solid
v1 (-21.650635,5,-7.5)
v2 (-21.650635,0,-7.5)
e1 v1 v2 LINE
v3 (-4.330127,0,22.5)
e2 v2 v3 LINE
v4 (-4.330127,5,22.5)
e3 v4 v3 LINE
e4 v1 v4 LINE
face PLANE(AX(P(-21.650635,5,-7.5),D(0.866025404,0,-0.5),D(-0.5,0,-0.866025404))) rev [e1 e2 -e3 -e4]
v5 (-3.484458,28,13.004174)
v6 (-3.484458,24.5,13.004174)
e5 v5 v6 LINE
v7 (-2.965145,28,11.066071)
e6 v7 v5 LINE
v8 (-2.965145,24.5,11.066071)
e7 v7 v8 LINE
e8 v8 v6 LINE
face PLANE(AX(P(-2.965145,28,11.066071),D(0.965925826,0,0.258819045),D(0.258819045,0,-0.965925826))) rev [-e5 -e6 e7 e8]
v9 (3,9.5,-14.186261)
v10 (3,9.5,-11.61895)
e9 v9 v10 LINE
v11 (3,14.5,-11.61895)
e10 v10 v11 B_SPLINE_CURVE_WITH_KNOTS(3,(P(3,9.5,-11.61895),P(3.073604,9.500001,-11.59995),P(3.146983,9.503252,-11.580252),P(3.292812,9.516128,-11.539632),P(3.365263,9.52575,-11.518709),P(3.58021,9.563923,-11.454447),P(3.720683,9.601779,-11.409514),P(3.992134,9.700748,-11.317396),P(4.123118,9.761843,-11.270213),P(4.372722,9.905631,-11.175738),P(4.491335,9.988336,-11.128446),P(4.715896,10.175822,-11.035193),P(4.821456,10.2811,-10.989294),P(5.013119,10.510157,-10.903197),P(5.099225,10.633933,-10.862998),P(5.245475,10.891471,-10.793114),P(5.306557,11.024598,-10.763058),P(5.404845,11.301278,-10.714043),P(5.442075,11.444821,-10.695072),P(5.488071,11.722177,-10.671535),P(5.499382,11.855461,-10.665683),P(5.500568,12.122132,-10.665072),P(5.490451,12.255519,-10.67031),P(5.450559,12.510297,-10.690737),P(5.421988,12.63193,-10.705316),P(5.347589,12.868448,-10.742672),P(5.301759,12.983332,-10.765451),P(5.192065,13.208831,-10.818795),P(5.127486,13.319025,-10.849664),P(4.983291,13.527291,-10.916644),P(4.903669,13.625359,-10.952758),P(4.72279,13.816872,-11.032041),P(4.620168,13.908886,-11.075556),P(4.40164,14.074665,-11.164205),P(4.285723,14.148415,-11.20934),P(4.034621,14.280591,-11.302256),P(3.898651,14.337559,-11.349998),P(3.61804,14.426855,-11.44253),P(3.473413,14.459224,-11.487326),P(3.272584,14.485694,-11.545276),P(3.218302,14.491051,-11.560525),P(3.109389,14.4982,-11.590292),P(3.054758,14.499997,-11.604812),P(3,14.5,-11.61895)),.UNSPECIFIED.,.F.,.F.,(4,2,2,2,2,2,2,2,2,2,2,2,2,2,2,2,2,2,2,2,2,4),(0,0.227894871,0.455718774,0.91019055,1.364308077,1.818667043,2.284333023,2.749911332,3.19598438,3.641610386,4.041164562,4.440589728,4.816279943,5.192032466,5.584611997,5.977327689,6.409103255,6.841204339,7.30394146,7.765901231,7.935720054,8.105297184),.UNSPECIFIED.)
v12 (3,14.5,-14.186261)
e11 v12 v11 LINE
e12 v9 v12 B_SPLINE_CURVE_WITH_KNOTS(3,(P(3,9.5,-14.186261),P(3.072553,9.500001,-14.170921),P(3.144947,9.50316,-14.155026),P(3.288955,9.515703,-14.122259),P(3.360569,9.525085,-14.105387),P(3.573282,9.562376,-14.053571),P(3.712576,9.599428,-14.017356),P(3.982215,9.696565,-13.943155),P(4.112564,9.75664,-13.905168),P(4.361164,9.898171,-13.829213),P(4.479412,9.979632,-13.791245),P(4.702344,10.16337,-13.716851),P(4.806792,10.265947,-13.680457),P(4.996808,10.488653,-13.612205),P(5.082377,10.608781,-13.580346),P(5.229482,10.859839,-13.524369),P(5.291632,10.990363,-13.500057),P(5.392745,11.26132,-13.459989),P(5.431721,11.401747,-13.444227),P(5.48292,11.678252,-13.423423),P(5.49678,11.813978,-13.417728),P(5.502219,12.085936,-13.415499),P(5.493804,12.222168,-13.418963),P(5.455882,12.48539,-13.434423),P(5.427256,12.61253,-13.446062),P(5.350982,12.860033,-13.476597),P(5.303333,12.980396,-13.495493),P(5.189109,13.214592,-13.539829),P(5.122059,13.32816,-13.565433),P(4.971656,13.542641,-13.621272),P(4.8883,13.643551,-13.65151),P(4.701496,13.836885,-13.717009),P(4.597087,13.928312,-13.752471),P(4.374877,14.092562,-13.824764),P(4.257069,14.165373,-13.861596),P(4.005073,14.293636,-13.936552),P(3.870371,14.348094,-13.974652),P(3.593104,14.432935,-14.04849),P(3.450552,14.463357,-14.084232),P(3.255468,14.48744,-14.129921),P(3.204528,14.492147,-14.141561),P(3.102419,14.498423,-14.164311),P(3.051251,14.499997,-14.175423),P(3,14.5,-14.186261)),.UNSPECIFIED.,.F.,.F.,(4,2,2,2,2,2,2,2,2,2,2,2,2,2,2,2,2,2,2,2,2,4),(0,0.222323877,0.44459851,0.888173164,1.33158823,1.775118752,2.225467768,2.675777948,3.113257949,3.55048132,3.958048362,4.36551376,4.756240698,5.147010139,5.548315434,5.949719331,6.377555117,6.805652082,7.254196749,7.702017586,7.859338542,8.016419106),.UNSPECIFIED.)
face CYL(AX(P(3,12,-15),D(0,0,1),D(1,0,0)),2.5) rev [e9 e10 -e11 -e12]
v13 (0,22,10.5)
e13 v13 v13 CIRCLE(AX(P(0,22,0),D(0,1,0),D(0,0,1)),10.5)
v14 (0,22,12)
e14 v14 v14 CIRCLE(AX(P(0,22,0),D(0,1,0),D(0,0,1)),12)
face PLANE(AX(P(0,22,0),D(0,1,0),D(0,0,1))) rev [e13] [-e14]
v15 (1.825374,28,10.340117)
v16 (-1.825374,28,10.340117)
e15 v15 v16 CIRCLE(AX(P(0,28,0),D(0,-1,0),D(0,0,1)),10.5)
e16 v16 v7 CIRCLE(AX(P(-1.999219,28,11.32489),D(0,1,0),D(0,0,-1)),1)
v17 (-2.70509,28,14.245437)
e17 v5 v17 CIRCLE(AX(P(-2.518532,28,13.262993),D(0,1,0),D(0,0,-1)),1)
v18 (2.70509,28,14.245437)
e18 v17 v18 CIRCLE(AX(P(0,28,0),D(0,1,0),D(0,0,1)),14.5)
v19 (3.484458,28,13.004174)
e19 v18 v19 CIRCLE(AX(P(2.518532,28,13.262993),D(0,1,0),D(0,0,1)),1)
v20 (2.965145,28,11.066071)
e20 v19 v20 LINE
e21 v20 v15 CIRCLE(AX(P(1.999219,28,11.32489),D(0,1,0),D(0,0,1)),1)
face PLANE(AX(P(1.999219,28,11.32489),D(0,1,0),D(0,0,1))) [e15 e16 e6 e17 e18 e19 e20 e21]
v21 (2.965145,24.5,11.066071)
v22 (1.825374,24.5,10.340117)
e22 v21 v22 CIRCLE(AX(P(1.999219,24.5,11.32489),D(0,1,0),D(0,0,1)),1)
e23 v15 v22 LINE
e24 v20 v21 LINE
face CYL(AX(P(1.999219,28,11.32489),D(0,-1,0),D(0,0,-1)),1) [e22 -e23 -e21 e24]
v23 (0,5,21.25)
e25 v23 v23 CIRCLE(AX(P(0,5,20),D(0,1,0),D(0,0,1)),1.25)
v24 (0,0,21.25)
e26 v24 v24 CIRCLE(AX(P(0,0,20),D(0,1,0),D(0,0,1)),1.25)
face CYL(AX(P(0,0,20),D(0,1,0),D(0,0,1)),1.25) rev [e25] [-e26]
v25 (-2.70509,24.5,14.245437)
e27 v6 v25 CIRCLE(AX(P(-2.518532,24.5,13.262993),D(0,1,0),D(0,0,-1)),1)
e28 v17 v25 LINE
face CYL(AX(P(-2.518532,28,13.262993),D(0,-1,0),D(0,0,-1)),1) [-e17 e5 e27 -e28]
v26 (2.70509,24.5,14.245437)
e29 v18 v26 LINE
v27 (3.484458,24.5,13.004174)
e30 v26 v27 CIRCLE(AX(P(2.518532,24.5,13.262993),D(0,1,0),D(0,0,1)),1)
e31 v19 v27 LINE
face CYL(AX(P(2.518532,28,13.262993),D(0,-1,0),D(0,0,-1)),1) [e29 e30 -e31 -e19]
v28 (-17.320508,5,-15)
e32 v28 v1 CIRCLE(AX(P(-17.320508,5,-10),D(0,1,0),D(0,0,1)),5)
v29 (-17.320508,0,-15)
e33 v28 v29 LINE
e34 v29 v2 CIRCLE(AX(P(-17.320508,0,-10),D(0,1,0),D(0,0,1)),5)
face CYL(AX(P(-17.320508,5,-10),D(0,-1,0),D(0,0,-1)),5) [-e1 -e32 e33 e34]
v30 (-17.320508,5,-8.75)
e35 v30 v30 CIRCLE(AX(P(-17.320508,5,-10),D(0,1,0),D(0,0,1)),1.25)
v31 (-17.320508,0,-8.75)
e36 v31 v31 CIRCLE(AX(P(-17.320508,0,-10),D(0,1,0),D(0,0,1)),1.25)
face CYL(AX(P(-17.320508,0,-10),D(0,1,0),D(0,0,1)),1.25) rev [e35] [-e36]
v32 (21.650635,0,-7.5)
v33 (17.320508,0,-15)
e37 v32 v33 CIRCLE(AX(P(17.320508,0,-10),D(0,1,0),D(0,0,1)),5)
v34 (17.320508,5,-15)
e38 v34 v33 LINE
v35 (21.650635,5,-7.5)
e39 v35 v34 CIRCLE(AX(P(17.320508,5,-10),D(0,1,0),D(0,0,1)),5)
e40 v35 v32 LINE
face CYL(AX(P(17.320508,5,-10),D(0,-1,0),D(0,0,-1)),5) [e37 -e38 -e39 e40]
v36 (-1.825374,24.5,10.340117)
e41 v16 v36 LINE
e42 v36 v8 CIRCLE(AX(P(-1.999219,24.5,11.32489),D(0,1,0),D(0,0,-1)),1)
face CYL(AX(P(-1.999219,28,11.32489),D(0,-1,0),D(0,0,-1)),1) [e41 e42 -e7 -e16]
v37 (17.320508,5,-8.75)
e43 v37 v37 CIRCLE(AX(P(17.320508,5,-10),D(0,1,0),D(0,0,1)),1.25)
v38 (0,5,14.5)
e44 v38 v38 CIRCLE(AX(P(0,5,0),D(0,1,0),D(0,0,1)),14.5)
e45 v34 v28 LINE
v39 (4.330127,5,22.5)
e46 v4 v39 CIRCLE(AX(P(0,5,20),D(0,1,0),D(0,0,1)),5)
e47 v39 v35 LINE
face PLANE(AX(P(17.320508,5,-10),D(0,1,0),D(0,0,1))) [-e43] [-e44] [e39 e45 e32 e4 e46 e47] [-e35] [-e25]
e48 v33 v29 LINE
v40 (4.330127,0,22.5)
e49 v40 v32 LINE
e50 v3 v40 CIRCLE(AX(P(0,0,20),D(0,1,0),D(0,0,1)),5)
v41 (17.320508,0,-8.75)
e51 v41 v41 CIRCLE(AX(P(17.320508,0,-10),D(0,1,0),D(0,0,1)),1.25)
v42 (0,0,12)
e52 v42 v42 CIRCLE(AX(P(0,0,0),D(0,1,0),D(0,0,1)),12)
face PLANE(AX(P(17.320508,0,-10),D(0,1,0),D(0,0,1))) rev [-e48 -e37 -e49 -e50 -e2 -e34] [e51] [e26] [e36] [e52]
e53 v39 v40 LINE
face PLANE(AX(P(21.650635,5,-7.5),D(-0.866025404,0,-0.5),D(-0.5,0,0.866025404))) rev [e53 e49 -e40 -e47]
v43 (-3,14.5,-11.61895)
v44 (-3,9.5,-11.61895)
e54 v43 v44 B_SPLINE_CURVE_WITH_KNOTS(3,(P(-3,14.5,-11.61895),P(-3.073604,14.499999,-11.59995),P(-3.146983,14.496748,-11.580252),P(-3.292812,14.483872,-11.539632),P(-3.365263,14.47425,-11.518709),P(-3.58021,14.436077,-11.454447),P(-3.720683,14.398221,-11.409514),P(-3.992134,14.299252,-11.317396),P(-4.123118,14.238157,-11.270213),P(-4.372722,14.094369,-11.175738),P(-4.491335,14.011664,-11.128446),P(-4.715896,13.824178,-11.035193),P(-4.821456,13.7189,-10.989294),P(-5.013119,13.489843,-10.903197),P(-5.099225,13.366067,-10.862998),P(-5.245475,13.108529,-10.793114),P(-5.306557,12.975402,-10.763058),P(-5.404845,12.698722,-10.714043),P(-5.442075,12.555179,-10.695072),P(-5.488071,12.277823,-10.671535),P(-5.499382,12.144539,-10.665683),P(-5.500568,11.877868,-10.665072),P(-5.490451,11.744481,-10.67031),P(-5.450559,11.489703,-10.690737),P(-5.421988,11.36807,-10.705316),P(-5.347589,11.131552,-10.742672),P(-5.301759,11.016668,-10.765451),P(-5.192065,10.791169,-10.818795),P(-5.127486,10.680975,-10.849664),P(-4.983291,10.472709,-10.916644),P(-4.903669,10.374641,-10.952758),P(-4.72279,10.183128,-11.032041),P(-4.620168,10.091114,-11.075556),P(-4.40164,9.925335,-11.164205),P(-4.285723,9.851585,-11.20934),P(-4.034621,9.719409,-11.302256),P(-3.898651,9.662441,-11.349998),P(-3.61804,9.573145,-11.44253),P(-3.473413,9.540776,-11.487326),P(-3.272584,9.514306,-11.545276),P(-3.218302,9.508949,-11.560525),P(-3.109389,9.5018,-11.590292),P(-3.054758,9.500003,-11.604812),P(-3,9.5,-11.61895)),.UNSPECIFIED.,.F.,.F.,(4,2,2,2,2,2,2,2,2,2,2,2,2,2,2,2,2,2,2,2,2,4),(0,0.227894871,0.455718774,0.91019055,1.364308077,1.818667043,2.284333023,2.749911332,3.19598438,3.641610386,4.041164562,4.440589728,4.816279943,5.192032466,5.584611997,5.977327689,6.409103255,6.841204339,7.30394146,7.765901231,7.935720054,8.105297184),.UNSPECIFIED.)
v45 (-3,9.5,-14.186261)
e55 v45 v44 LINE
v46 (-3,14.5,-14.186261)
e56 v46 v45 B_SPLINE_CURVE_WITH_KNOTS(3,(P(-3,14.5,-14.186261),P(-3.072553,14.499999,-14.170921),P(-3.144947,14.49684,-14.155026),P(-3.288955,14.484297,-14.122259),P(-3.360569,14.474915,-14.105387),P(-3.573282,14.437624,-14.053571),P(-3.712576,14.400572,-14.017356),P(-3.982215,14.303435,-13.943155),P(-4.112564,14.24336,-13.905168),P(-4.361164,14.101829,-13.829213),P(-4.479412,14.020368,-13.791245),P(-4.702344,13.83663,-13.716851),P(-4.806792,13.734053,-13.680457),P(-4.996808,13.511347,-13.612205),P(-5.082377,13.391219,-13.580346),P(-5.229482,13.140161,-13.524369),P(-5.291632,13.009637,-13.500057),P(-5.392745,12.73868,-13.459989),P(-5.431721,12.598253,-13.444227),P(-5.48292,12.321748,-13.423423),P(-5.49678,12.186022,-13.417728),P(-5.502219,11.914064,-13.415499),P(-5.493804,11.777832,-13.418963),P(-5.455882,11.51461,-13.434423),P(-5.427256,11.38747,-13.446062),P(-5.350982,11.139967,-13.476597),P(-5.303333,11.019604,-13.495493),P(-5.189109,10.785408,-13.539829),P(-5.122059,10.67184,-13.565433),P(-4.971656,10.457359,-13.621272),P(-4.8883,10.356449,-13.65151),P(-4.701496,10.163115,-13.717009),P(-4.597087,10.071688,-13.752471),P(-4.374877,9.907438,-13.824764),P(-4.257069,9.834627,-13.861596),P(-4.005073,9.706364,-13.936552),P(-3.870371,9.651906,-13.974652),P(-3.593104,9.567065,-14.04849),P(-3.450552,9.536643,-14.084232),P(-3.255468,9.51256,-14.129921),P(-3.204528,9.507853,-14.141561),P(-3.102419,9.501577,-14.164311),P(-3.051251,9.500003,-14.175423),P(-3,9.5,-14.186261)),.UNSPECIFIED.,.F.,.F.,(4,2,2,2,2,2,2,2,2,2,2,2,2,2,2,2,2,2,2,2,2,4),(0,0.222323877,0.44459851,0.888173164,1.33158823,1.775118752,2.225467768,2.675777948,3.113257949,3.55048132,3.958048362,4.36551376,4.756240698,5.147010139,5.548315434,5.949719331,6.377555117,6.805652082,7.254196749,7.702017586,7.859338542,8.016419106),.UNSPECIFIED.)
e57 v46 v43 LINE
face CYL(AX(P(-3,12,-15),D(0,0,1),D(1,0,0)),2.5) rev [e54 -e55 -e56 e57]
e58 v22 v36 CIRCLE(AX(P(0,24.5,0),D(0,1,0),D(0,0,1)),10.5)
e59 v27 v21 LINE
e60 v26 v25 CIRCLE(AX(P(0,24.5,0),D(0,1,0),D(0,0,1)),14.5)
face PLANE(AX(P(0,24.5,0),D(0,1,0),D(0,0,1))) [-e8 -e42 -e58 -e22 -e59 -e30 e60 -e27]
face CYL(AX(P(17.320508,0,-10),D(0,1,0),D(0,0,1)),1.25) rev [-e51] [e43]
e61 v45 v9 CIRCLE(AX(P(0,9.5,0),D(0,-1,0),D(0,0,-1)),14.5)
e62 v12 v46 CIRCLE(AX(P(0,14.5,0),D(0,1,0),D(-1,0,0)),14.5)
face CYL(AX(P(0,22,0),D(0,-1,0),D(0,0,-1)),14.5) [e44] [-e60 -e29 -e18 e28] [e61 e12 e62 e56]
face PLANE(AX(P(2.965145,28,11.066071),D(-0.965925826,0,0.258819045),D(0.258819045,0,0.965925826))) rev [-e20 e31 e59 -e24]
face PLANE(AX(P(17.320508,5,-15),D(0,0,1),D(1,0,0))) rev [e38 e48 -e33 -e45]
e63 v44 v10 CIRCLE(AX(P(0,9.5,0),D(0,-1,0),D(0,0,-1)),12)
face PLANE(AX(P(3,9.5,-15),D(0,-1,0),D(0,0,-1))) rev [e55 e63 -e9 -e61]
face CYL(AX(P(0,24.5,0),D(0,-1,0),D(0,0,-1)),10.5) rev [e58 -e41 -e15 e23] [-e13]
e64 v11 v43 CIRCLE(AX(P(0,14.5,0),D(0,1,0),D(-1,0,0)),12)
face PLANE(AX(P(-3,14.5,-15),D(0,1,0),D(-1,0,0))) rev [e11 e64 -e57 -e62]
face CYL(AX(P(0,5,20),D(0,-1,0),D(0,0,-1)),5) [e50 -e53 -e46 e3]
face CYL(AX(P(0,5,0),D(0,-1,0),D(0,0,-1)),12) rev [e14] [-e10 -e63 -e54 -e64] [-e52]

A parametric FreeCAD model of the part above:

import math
import FreeCAD as App
import Part
import Sketcher
from FreeCAD import Vector
Q = App.Units.Quantity

doc = App.newDocument("Part")
params = doc.addObject("Spreadsheet::Sheet", "Params")
for row, (alias, value) in enumerate([
    ("sketch1_diameter", "24 mm"),
    ("sketch1_radius", "5 mm"),
    ("pad1_length", "5 mm"),
    ("sketch2_diameter", "2.5 mm"),
    ("pocket1_length", "5 mm"),
    ("sketch3_diameter", "29 mm"),
    ("sketch3_diameter2", "24 mm"),
    ("pad2_length", "17 mm"),
    ("sketch4_diameter", "29 mm"),
    ("sketch4_diameter2", "21 mm"),
    ("pad3_length", "2.5 mm"),
    ("sketch5_radius", "0.999999 mm"),
    ("pad4_length", "3.5 mm"),
    ("sketch6_radius", "2.5 mm"),
    ("sketch6_width", "6 mm"),
], start=1):
    params.set(f"A{row}", alias)
    params.set(f"B{row}", "=" + value)
    params.setAlias(f"B{row}", alias)

body = doc.addObject("PartDesign::Body", "Body")

sketch1 = body.newObject("Sketcher::SketchObject", "Sketch")
sketch1.AttachmentSupport = (doc.getObject("XZ_Plane"), [""])
sketch1.MapMode = "FlatFace"
sketch1.addGeometry(Part.LineSegment(Vector(-21.7, -7.5, 0), Vector(-4.3, 22.5, 0)), False)
sketch1.addGeometry(Part.ArcOfCircle(Part.Circle(Vector(0, 20, 0), Vector(0, 0, 1), 5), math.radians(30), math.radians(150)), False)
sketch1.addGeometry(Part.LineSegment(Vector(4.3, 22.5, 0), Vector(21.7, -7.5, 0)), False)
sketch1.addGeometry(Part.ArcOfCircle(Part.Circle(Vector(17.3, -10, 0), Vector(0, 0, 1), 5), math.radians(-90), math.radians(30)), False)
sketch1.addGeometry(Part.LineSegment(Vector(17.3, -15, 0), Vector(-17.3, -15, 0)), False)
sketch1.addGeometry(Part.ArcOfCircle(Part.Circle(Vector(-17.3, -10, 0), Vector(0, 0, 1), 5), math.radians(150), math.radians(270)), False)
sketch1.addGeometry(Part.Circle(Vector(0, 0, 0), Vector(0, 0, 1), 12), False)
sketch1.addConstraint(Sketcher.Constraint("Tangent", 0, 2, 1, 2))
sketch1.addConstraint(Sketcher.Constraint("Tangent", 1, 1, 2, 1))
sketch1.addConstraint(Sketcher.Constraint("Tangent", 2, 2, 3, 2))
sketch1.addConstraint(Sketcher.Constraint("Tangent", 3, 1, 4, 1))
sketch1.addConstraint(Sketcher.Constraint("Tangent", 4, 2, 5, 2))
sketch1.addConstraint(Sketcher.Constraint("Tangent", 5, 1, 0, 1))
sketch1.addConstraint(Sketcher.Constraint("Horizontal", 4))
sketch1.addConstraint(Sketcher.Constraint("Coincident", 6, 3, -1, 1))
sketch1.addConstraint(Sketcher.Constraint("Equal", 1, 3))
sketch1.addConstraint(Sketcher.Constraint("Equal", 3, 5))
sketch1.addConstraint(Sketcher.Constraint("Symmetric", 0, 2, 1, 1, -2))
sketch1.addConstraint(Sketcher.Constraint("Diameter", 6, Q("24 mm")))
sketch1.addConstraint(Sketcher.Constraint("Radius", 1, Q("5 mm")))
sketch1.addConstraint(Sketcher.Constraint("Angle", 0, Q("60 deg")))
sketch1.addConstraint(Sketcher.Constraint("DistanceY", -1, 1, 1, 3, Q("20 mm")))
sketch1.addConstraint(Sketcher.Constraint("DistanceY", 3, 3, -1, 1, Q("10 mm")))
sketch1.setExpression("Constraints[11]", "Params.sketch1_diameter")
sketch1.setExpression("Constraints[12]", "Params.sketch1_radius")
pad1 = body.newObject("PartDesign::Pad", "Pad")
pad1.Profile = sketch1
pad1.setExpression("Length", "Params.pad1_length")
pad1.Reversed = True

sketch2 = body.newObject("Sketcher::SketchObject", "Sketch001")
sketch2.AttachmentSupport = (doc.getObject("XZ_Plane"), [""])
sketch2.MapMode = "FlatFace"
sketch2.AttachmentOffset = App.Placement(Vector(0, 0, -5), App.Rotation())
sketch2.addGeometry(Part.Circle(Vector(0, 20, 0), Vector(0, 0, 1), 1.2), False)
sketch2.addGeometry(Part.Circle(Vector(-17.3, -10, 0), Vector(0, 0, 1), 1.2), False)
sketch2.addGeometry(Part.Circle(Vector(17.3, -10, 0), Vector(0, 0, 1), 1.2), False)
sketch2.addConstraint(Sketcher.Constraint("Equal", 0, 1))
sketch2.addConstraint(Sketcher.Constraint("Equal", 1, 2))
sketch2.addConstraint(Sketcher.Constraint("Symmetric", 1, 3, 2, 3, -2))
sketch2.addConstraint(Sketcher.Constraint("PointOnObject", 0, 3, -2))
sketch2.addConstraint(Sketcher.Constraint("Diameter", 0, Q("2.5 mm")))
sketch2.addConstraint(Sketcher.Constraint("DistanceY", -1, 1, 0, 3, Q("20 mm")))
sketch2.addConstraint(Sketcher.Constraint("DistanceY", 1, 3, -1, 1, Q("10 mm")))
sketch2.addConstraint(Sketcher.Constraint("DistanceX", 1, 3, -1, 1, Q("17.320508 mm")))
sketch2.setExpression("Constraints[4]", "Params.sketch2_diameter")
pocket1 = body.newObject("PartDesign::Pocket", "Pocket")
pocket1.Profile = sketch2
pocket1.setExpression("Length", "Params.pocket1_length")
pocket1.Reversed = True

sketch3 = body.newObject("Sketcher::SketchObject", "Sketch002")
sketch3.AttachmentSupport = (doc.getObject("XZ_Plane"), [""])
sketch3.MapMode = "FlatFace"
sketch3.AttachmentOffset = App.Placement(Vector(0, 0, -5), App.Rotation())
sketch3.addGeometry(Part.Circle(Vector(0, 0, 0), Vector(0, 0, 1), 14), False)
sketch3.addGeometry(Part.Circle(Vector(0, 0, 0), Vector(0, 0, 1), 12), False)
sketch3.addConstraint(Sketcher.Constraint("Coincident", 0, 3, -1, 1))
sketch3.addConstraint(Sketcher.Constraint("Coincident", 1, 3, -1, 1))
sketch3.addConstraint(Sketcher.Constraint("Diameter", 0, Q("29 mm")))
sketch3.addConstraint(Sketcher.Constraint("Diameter", 1, Q("24 mm")))
sketch3.setExpression("Constraints[2]", "Params.sketch3_diameter")
sketch3.setExpression("Constraints[3]", "Params.sketch3_diameter2")
pad2 = body.newObject("PartDesign::Pad", "Pad001")
pad2.Profile = sketch3
pad2.setExpression("Length", "Params.pad2_length")
pad2.Reversed = True

sketch4 = body.newObject("Sketcher::SketchObject", "Sketch003")
sketch4.AttachmentSupport = (doc.getObject("XZ_Plane"), [""])
sketch4.MapMode = "FlatFace"
sketch4.AttachmentOffset = App.Placement(Vector(0, 0, -22), App.Rotation())
sketch4.addGeometry(Part.Circle(Vector(0, 0, 0), Vector(0, 0, 1), 14), False)
sketch4.addGeometry(Part.Circle(Vector(0, 0, 0), Vector(0, 0, 1), 10), False)
sketch4.addConstraint(Sketcher.Constraint("Coincident", 0, 3, -1, 1))
sketch4.addConstraint(Sketcher.Constraint("Coincident", 1, 3, -1, 1))
sketch4.addConstraint(Sketcher.Constraint("Diameter", 0, Q("29 mm")))
sketch4.addConstraint(Sketcher.Constraint("Diameter", 1, Q("21 mm")))
sketch4.setExpression("Constraints[2]", "Params.sketch4_diameter")
sketch4.setExpression("Constraints[3]", "Params.sketch4_diameter2")
pad3 = body.newObject("PartDesign::Pad", "Pad002")
pad3.Profile = sketch4
pad3.setExpression("Length", "Params.pad3_length")
pad3.Reversed = True

sketch5 = body.newObject("Sketcher::SketchObject", "Sketch004")
sketch5.AttachmentSupport = (doc.getObject("XZ_Plane"), [""])
sketch5.MapMode = "FlatFace"
sketch5.AttachmentOffset = App.Placement(Vector(0, 0, -24.5), App.Rotation())
sketch5.addGeometry(Part.LineSegment(Vector(3.484458, 13.004174, 0), Vector(2.965145, 11.066071, 0)), False)
sketch5.addGeometry(Part.ArcOfCircle(Part.Circle(Vector(1.99922, 11.324888, 0), Vector(0, 0, 1), 0.999999), math.radians(-100.01153), math.radians(-14.999928)), False)
sketch5.addGeometry(Part.ArcOfCircle(Part.Circle(Vector(0, -0.000031, 0), Vector(0, 0, 1), 10.500031), math.radians(79.98857), math.radians(100.01143)), False)
sketch5.addGeometry(Part.ArcOfCircle(Part.Circle(Vector(-1.99922, 11.324888, 0), Vector(0, 0, 1), 0.999999), math.radians(-165.000072), math.radians(-79.98847)), False)
sketch5.addGeometry(Part.LineSegment(Vector(-2.965145, 11.066071, 0), Vector(-3.484458, 13.004174, 0)), False)
sketch5.addGeometry(Part.ArcOfCircle(Part.Circle(Vector(-2.518532, 13.262993, 0), Vector(0, 0, 1), 1), math.radians(100.751976), math.radians(194.999994)), False)
sketch5.addGeometry(Part.ArcOfCircle(Part.Circle(Vector(0, 0.000025, 0), Vector(0, 0, 1), 14.499975), math.radians(79.248004), math.radians(100.751996)), False)
sketch5.addGeometry(Part.ArcOfCircle(Part.Circle(Vector(2.518532, 13.262993, 0), Vector(0, 0, 1), 1), math.radians(-14.999994), math.radians(79.248024)), False)
sketch5.addConstraint(Sketcher.Constraint("Tangent", 0, 2, 1, 2))
sketch5.addConstraint(Sketcher.Constraint("Tangent", 1, 1, 2, 1))
sketch5.addConstraint(Sketcher.Constraint("Tangent", 2, 2, 3, 2))
sketch5.addConstraint(Sketcher.Constraint("Tangent", 3, 1, 4, 1))
sketch5.addConstraint(Sketcher.Constraint("Tangent", 4, 2, 5, 2))
sketch5.addConstraint(Sketcher.Constraint("Tangent", 5, 1, 6, 2))
sketch5.addConstraint(Sketcher.Constraint("Tangent", 6, 1, 7, 2))
sketch5.addConstraint(Sketcher.Constraint("Tangent", 7, 1, 0, 1))
sketch5.addConstraint(Sketcher.Constraint("Equal", 1, 3))
sketch5.addConstraint(Sketcher.Constraint("Equal", 3, 5))
sketch5.addConstraint(Sketcher.Constraint("Equal", 5, 7))
sketch5.addConstraint(Sketcher.Constraint("Symmetric", 2, 3, 6, 3, -1, 1))
sketch5.addConstraint(Sketcher.Constraint("Symmetric", 1, 3, 3, 3, -2))
sketch5.addConstraint(Sketcher.Constraint("Horizontal", 5, 3, 7, 3))
sketch5.addConstraint(Sketcher.Constraint("Radius", 1, Q("0.999999 mm")))
sketch5.addConstraint(Sketcher.Constraint("Angle", 0, Q("-104.999996 deg")))
sketch5.addConstraint(Sketcher.Constraint("Radius", 2, Q("10.500031 mm")))
sketch5.addConstraint(Sketcher.Constraint("Radius", 6, Q("14.499975 mm")))
sketch5.addConstraint(Sketcher.Constraint("Distance", 0, Q("2.006472 mm")))
sketch5.addConstraint(Sketcher.Constraint("DistanceX", -1, 1, 1, 3, Q("1.99922 mm")))
sketch5.setExpression("Constraints[14]", "Params.sketch5_radius")
pad4 = body.newObject("PartDesign::Pad", "Pad003")
pad4.Profile = sketch5
pad4.setExpression("Length", "Params.pad4_length")
pad4.Reversed = True

sketch6 = body.newObject("Sketcher::SketchObject", "Sketch005")
sketch6.AttachmentSupport = (doc.getObject("XY_Plane"), [""])
sketch6.MapMode = "FlatFace"
sketch6.addGeometry(Part.LineSegment(Vector(3, 14.5, 0), Vector(-3, 14.5, 0)), False)
sketch6.addGeometry(Part.ArcOfCircle(Part.Circle(Vector(-3, 12, 0), Vector(0, 0, 1), 2.5), math.radians(90), math.radians(270)), False)
sketch6.addGeometry(Part.LineSegment(Vector(-3, 9.5, 0), Vector(3, 9.5, 0)), False)
sketch6.addGeometry(Part.ArcOfCircle(Part.Circle(Vector(3, 12, 0), Vector(0, 0, 1), 2.5), math.radians(-90), math.radians(90)), False)
sketch6.addConstraint(Sketcher.Constraint("Tangent", 0, 2, 1, 1))
sketch6.addConstraint(Sketcher.Constraint("Tangent", 1, 2, 2, 1))
sketch6.addConstraint(Sketcher.Constraint("Tangent", 2, 2, 3, 1))
sketch6.addConstraint(Sketcher.Constraint("Tangent", 3, 2, 0, 1))
sketch6.addConstraint(Sketcher.Constraint("Horizontal", 0))
sketch6.addConstraint(Sketcher.Constraint("Horizontal", 2))
sketch6.addConstraint(Sketcher.Constraint("Radius", 1, Q("2.5 mm")))
sketch6.addConstraint(Sketcher.Constraint("DistanceX", 0, 2, 0, 1, Q("6 mm")))
sketch6.addConstraint(Sketcher.Constraint("DistanceX", 1, 3, -1, 1, Q("3 mm")))
sketch6.addConstraint(Sketcher.Constraint("DistanceY", -1, 1, 1, 3, Q("12 mm")))
sketch6.setExpression("Constraints[6]", "Params.sketch6_radius")
sketch6.setExpression("Constraints[7]", "Params.sketch6_width")
pocket2 = body.newObject("PartDesign::Pocket", "Pocket001")
pocket2.Profile = sketch6
pocket2.Type = "ThroughAll"

doc.recompute()
